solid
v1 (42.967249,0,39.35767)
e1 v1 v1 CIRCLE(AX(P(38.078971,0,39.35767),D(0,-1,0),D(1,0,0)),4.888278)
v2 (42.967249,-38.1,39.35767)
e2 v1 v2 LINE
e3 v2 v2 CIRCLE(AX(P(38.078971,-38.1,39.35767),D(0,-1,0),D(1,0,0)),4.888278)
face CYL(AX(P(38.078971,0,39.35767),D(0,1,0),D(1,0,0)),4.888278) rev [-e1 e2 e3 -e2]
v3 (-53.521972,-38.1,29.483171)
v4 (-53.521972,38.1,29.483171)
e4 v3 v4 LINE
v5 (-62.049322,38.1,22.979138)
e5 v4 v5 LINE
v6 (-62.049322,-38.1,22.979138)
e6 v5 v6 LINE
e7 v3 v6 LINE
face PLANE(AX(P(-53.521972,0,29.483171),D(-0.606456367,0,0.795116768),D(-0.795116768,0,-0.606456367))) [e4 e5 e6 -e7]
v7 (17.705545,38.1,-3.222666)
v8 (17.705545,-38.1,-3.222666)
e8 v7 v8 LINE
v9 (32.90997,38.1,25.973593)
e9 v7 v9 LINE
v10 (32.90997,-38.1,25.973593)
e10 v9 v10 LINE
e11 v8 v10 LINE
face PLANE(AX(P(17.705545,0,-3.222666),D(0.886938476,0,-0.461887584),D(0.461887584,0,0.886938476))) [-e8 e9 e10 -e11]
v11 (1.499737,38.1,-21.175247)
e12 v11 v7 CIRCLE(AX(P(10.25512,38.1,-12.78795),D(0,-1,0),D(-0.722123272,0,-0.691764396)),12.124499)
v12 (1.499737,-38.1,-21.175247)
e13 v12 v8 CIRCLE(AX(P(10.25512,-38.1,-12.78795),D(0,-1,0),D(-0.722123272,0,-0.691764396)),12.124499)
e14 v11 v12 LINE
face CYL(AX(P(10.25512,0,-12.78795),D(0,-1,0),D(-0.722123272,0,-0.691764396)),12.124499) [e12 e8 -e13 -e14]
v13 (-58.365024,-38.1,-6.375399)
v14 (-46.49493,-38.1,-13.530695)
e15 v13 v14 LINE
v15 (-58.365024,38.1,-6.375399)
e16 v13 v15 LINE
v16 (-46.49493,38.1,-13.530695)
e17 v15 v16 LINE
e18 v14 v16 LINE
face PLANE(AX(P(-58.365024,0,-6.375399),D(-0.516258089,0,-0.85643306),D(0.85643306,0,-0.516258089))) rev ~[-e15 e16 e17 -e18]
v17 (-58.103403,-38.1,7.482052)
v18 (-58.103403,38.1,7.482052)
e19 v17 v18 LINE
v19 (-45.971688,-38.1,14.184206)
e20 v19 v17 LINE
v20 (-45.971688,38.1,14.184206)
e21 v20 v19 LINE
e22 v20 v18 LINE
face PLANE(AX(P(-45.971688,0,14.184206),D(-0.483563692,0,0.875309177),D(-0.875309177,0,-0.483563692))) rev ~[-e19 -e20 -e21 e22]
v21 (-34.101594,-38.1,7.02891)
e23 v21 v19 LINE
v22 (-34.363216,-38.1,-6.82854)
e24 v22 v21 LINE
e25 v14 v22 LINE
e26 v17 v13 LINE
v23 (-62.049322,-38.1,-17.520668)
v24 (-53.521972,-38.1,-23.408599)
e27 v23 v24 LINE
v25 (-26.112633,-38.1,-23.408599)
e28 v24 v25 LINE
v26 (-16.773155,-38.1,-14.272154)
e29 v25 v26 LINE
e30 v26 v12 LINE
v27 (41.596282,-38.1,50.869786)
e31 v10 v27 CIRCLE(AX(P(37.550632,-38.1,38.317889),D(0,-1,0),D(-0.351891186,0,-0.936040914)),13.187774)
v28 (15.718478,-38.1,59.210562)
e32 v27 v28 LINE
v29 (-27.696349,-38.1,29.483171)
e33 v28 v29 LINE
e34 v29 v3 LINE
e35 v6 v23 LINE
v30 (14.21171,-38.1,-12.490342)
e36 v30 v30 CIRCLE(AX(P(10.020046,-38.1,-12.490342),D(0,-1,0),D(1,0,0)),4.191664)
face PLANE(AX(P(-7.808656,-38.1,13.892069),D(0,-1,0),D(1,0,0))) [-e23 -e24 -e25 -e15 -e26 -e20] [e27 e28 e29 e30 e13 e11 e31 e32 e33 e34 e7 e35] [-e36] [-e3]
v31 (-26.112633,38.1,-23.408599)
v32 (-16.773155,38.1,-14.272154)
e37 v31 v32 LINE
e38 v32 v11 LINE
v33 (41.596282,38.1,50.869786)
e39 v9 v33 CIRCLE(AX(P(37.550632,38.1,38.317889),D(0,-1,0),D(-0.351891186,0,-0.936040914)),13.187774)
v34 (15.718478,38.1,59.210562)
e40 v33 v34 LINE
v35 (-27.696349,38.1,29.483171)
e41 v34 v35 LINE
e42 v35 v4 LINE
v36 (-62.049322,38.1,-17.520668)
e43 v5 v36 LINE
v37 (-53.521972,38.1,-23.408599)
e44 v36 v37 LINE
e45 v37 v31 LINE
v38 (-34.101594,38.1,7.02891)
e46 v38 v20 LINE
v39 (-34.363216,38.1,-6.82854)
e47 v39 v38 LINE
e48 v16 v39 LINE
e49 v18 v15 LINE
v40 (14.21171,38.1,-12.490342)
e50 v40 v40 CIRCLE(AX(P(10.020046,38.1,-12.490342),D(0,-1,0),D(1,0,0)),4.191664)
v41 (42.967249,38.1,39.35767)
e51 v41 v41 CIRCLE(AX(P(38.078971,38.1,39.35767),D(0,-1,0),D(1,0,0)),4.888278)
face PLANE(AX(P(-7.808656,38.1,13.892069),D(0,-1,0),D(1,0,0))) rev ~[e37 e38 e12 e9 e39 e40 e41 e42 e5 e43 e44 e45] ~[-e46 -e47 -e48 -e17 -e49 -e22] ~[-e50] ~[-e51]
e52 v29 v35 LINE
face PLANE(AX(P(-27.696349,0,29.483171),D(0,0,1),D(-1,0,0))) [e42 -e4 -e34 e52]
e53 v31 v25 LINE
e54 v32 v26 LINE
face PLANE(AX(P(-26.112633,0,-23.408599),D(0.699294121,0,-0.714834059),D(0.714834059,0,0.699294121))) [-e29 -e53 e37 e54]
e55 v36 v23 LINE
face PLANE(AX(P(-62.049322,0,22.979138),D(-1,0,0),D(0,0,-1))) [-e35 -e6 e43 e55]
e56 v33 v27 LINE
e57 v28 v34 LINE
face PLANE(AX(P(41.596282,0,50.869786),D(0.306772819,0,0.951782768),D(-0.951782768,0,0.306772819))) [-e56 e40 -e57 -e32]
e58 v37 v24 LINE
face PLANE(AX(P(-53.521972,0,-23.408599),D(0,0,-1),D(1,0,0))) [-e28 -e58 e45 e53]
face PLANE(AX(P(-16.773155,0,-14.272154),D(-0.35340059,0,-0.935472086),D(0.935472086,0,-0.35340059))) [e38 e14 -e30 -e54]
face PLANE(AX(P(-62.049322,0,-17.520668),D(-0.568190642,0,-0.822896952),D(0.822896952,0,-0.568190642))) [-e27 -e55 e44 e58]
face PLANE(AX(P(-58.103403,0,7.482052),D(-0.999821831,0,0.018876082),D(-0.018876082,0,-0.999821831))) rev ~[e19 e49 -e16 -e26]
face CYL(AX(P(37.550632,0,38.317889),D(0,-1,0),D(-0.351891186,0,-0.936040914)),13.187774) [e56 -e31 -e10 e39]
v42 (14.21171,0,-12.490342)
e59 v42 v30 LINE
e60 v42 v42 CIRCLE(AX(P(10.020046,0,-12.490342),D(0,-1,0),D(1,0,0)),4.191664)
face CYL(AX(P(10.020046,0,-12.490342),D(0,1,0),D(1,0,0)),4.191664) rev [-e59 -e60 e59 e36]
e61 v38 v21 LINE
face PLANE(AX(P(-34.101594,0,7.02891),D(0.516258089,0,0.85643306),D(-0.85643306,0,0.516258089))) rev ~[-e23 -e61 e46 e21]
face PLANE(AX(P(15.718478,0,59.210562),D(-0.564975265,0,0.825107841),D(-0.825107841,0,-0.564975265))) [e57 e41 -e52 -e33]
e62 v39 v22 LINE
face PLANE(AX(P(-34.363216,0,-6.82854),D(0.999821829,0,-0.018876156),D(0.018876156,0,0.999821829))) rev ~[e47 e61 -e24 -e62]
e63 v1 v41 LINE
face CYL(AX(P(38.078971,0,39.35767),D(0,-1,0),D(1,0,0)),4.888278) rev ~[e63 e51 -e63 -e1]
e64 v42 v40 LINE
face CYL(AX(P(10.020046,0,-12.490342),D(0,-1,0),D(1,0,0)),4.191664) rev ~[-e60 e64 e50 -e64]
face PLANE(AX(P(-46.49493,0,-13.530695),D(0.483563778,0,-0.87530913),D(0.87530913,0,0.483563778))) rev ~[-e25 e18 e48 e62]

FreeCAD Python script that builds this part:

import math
import FreeCAD as App
import Part
import Sketcher
Q = App.Units.Quantity


def add_polygon(sketch, points):
    """Adds a closed chain of lines whose ends are joined by coincident constraints."""
    first, n = sketch.GeometryCount, len(points)
    for a, b in zip(points, points[1:] + points[:1]):
        sketch.addGeometry(Part.LineSegment(App.Vector(*a, 0), App.Vector(*b, 0)), False)
    for i in range(n):
        sketch.addConstraint(Sketcher.Constraint("Coincident", first + i, 2, first + (i + 1) % n, 1))

doc = App.newDocument("Part")
body = doc.addObject("PartDesign::Body", "Body")

# Sketch on XZ plane
sketch1 = body.newObject("Sketcher::SketchObject", "Sketch")
sketch1.AttachmentSupport = (doc.getObject("XZ_Plane"), [""])
sketch1.MapMode = "FlatFace"
sketch1.addGeometry(Part.LineSegment(App.Vector(-54, 29, 0), App.Vector(-62, 23, 0)), False)
sketch1.addGeometry(Part.LineSegment(App.Vector(-62, 23, 0), App.Vector(-62, -18, 0)), False)
sketch1.addGeometry(Part.LineSegment(App.Vector(-62, -18, 0), App.Vector(-54, -23, 0)), False)
sketch1.addGeometry(Part.LineSegment(App.Vector(-54, -23, 0), App.Vector(-26, -23, 0)), False)
sketch1.addGeometry(Part.LineSegment(App.Vector(-26, -23, 0), App.Vector(-17, -14, 0)), False)
sketch1.addGeometry(Part.LineSegment(App.Vector(-17, -14, 0), App.Vector(1, -21, 0)), False)
sketch1.addGeometry(Part.ArcOfCircle(Part.Circle(App.Vector(10, -13, 0), App.Vector(0, 0, 1), 12), math.radians(-136), math.radians(52)), False)
sketch1.addGeometry(Part.LineSegment(App.Vector(18, -3, 0), App.Vector(33, 26, 0)), False)
sketch1.addGeometry(Part.ArcOfCircle(Part.Circle(App.Vector(38, 38, 0), App.Vector(0, 0, 1), 13), math.radians(-111), math.radians(72)), False)
sketch1.addGeometry(Part.LineSegment(App.Vector(42, 51, 0), App.Vector(16, 59, 0)), False)
sketch1.addGeometry(Part.LineSegment(App.Vector(16, 59, 0), App.Vector(-28, 29, 0)), False)
sketch1.addGeometry(Part.LineSegment(App.Vector(-28, 29, 0), App.Vector(-54, 29, 0)), False)
sketch1.addConstraint(Sketcher.Constraint("Coincident", 0, 2, 1, 1))
sketch1.addConstraint(Sketcher.Constraint("Coincident", 1, 2, 2, 1))
sketch1.addConstraint(Sketcher.Constraint("Coincident", 2, 2, 3, 1))
sketch1.addConstraint(Sketcher.Constraint("Coincident", 3, 2, 4, 1))
sketch1.addConstraint(Sketcher.Constraint("Coincident", 4, 2, 5, 1))
sketch1.addConstraint(Sketcher.Constraint("Coincident", 5, 2, 6, 1))
sketch1.addConstraint(Sketcher.Constraint("Coincident", 6, 2, 7, 1))
sketch1.addConstraint(Sketcher.Constraint("Coincident", 7, 2, 8, 1))
sketch1.addConstraint(Sketcher.Constraint("Tangent", 8, 2, 9, 1))
sketch1.addConstraint(Sketcher.Constraint("Coincident", 9, 2, 10, 1))
sketch1.addConstraint(Sketcher.Constraint("Coincident", 10, 2, 11, 1))
sketch1.addConstraint(Sketcher.Constraint("Coincident", 11, 2, 0, 1))
sketch1.addConstraint(Sketcher.Constraint("Vertical", 1))
sketch1.addConstraint(Sketcher.Constraint("Horizontal", 3))
sketch1.addConstraint(Sketcher.Constraint("Horizontal", 11))
sketch1.addConstraint(Sketcher.Constraint("Vertical", 2, 2, 11, 2))
sketch1.addConstraint(Sketcher.Constraint("Radius", 6, 12.124499))
sketch1.addConstraint(Sketcher.Constraint("Radius", 8, 13.187774))
sketch1.addConstraint(Sketcher.Constraint("DistanceX", 5, 2, 6, 3, Q("0.3447001 in")))
sketch1.addConstraint(Sketcher.Constraint("DistanceX", 3, 1, 3, 2, 27.409339))
sketch1.addConstraint(Sketcher.Constraint("DistanceY", 2, 2, -1, 1, 23.408599))
sketch1.addConstraint(Sketcher.Constraint("DistanceX", 4, 2, 6, 2, 34.4787))
sketch1.addConstraint(Sketcher.Constraint("Distance", 0, 10.724651))
sketch1.addConstraint(Sketcher.Constraint("Distance", 4, 13.065239))
sketch1.addConstraint(Sketcher.Constraint("Distance", 7, 32.918021))
sketch1.addConstraint(Sketcher.Constraint("Distance", 9, 27.188771))
sketch1.addConstraint(Sketcher.Constraint("DistanceX", 11, 2, 11, 1, 25.825623))
sketch1.addConstraint(Sketcher.Constraint("DistanceY", 1, 2, 1, 1, 40.499806))
sketch1.addConstraint(Sketcher.Constraint("DistanceX", -1, 1, 6, 3, 10.25512))
sketch1.addConstraint(Sketcher.Constraint("DistanceY", 6, 3, -1, 1, 12.78795))
sketch1.addConstraint(Sketcher.Constraint("DistanceX", -1, 1, 8, 3, 37.550632))
sketch1.addConstraint(Sketcher.Constraint("DistanceY", -1, 1, 8, 3, 38.317889))
sketch1.addConstraint(Sketcher.Constraint("DistanceX", 0, 2, -1, 1, 62.049322))
sketch1.addConstraint(Sketcher.Constraint("DistanceY", 1, 2, -1, 1, 17.520668))
sketch1.addConstraint(Sketcher.Constraint("DistanceX", 2, 2, -1, 1, 53.521972))
sketch1.addConstraint(Sketcher.Constraint("DistanceX", -1, 1, 7, 2, 32.90997))
sketch1.addConstraint(Sketcher.Constraint("DistanceX", 8, 3, 8, 2, 4.04565))
pad1 = body.newObject("PartDesign::Pad", "Pad")
pad1.Profile = sketch1
pad1.Length = Q("3 in")
pad1.Midplane = True

# Sketch on XZ plane
sketch2 = body.newObject("Sketcher::SketchObject", "Sketch001")
sketch2.AttachmentSupport = (doc.getObject("XZ_Plane"), [""])
sketch2.MapMode = "FlatFace"
sketch2.addGeometry(Part.Circle(App.Vector(10, -12.5, 0), App.Vector(0, 0, 1), 4.2), False)  # 0
sketch2.addGeometry(Part.Circle(App.Vector(38.1, 39.4, 0), App.Vector(0, 0, 1), 4.9), False)  # 1
add_polygon(sketch2, [(-46.5, -13.5), (-34.4, -6.8), (-34.1, 7), (-46, 14.2), (-58.1, 7.5), (-58.4, -6.4)])  # lines 2-7
sketch2.addConstraint(Sketcher.Constraint("Parallel", 2, 5))
sketch2.addConstraint(Sketcher.Constraint("Parallel", 3, 6))
sketch2.addConstraint(Sketcher.Constraint("Parallel", 4, 7))
sketch2.addConstraint(Sketcher.Constraint("Equal", 2, 3))
sketch2.addConstraint(Sketcher.Constraint("Equal", 3, 4))
sketch2.addConstraint(Sketcher.Constraint("Equal", 4, 5))
sketch2.addConstraint(Sketcher.Constraint("DistanceY", 6, 2, -1, 1, Q("0.251 in")))
sketch2.addConstraint(Sketcher.Constraint("Diameter", 0, 8.383328))
sketch2.addConstraint(Sketcher.Constraint("Diameter", 1, 9.776556))
sketch2.addConstraint(Sketcher.Constraint("DistanceX", 2, 2, 3, 2, Q("0.0103001 in")))
sketch2.addConstraint(Sketcher.Constraint("DistanceX", 7, 2, 4, 2, Q("0.0206001 in")))
sketch2.addConstraint(Sketcher.Constraint("DistanceY", 0, 3, 2, 2, 5.661802))
sketch2.addConstraint(Sketcher.Constraint("DistanceY", 7, 2, 4, 2, 27.714901))
sketch2.addConstraint(Sketcher.Constraint("Distance", 2, 13.859919))
sketch2.addConstraint(Sketcher.Constraint("DistanceX", -1, 1, 1, 3, 38.078971))
sketch2.addConstraint(Sketcher.Constraint("DistanceY", -1, 1, 1, 3, 39.35767))
sketch2.addConstraint(Sketcher.Constraint("DistanceX", 7, 2, -1, 1, 46.49493))
sketch2.addConstraint(Sketcher.Constraint("DistanceX", 3, 2, 0, 3, 44.12164))
pocket1 = body.newObject("PartDesign::Pocket", "Pocket")
pocket1.Profile = sketch2
pocket1.Length = Q("3 in")
pocket1.Midplane = True

doc.recompute()
